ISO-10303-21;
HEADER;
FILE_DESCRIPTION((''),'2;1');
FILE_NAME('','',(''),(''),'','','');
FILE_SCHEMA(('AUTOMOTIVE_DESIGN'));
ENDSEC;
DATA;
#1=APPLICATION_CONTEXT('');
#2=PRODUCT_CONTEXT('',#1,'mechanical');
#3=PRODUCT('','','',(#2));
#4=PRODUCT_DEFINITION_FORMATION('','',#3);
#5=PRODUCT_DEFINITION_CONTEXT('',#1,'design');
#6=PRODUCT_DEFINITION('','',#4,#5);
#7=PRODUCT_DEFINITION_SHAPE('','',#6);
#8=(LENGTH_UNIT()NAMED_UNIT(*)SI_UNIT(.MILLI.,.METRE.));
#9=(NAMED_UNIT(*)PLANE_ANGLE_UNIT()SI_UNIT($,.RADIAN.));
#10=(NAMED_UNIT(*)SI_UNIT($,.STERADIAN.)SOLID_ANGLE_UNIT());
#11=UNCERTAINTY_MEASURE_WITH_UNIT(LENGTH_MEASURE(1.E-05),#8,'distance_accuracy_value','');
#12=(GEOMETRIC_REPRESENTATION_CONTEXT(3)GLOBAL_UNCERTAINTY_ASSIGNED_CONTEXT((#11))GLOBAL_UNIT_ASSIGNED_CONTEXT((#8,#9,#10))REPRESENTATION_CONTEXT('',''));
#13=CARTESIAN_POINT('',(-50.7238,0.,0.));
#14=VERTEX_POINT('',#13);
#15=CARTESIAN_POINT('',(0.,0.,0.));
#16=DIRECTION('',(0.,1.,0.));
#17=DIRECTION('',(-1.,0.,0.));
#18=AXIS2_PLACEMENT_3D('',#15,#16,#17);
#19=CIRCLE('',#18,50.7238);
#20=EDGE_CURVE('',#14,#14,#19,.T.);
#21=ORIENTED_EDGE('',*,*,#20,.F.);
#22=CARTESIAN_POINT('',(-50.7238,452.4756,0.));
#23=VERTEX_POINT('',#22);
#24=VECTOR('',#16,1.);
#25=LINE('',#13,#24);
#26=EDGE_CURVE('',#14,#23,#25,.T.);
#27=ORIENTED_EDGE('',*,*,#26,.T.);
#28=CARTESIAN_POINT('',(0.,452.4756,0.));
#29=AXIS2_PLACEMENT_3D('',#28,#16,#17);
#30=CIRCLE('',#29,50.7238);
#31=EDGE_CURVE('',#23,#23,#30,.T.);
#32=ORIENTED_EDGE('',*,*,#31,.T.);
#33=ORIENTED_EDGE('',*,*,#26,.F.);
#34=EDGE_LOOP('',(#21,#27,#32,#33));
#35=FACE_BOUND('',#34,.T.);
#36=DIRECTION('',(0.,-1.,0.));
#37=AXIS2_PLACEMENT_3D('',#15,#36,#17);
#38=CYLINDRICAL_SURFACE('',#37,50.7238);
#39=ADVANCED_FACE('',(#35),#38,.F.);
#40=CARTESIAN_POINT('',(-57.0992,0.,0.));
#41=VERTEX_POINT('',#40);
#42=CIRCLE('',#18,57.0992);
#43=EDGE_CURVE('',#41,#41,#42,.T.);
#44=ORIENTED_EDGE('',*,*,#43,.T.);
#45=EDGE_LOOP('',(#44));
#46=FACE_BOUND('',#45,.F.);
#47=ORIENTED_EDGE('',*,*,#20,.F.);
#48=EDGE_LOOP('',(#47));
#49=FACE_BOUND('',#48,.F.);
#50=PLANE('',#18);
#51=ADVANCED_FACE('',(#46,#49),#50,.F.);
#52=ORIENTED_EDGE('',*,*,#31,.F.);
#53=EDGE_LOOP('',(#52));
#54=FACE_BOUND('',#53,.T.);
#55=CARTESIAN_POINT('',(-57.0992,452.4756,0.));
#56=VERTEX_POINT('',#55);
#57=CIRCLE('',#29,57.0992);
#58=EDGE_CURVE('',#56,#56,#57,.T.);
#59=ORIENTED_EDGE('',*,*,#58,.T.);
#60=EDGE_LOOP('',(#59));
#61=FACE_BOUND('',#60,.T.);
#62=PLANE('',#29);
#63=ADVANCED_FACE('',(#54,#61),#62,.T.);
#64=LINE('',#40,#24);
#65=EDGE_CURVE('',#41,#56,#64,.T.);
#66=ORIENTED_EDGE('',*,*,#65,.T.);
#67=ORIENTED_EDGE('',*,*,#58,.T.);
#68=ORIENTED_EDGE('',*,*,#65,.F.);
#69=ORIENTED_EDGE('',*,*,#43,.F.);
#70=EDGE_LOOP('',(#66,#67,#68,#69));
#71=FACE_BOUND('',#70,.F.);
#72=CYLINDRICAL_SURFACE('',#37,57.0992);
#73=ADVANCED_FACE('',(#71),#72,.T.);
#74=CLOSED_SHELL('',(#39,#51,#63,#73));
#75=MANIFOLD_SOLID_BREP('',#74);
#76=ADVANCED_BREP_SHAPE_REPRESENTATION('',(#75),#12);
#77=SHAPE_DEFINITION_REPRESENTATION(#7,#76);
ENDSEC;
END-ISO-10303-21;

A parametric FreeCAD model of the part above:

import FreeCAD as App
import Part
import Sketcher
Q = App.Units.Quantity

doc = App.newDocument("Part")
params = doc.addObject("Spreadsheet::Sheet", "Params")
for row, (alias, value) in enumerate([
    ("sketch1_diameter", "4.496 in"),
    ("sketch1_diameter2", "3.994 in"),
    ("pad1_length", "17.814 in"),
], start=1):
    params.set(f"A{row}", alias)
    params.set(f"B{row}", "=" + value)
    params.setAlias(f"B{row}", alias)

body = doc.addObject("PartDesign::Body", "Body")

sketch1 = doc.addObject("Sketcher::SketchObject", "Sketch")
body.addObject(sketch1)
sketch1.AttachmentSupport = (doc.XZ_Plane, [""])
sketch1.MapMode = "FlatFace"
sketch1.addGeometry([
    Part.Circle(App.Vector(0, 0, 0), App.Vector(0, 0, 1), 57.0992),
    Part.Circle(App.Vector(0, 0, 0), App.Vector(0, 0, 1), 50.7238),
], False)
sketch1.addConstraint([
    Sketcher.Constraint("Coincident", 0, 3, -1, 1),
    Sketcher.Constraint("Coincident", 1, 3, -1, 1),
    Sketcher.Constraint("Diameter", 0, Q("4.496 in")),
    Sketcher.Constraint("Diameter", 1, Q("3.994 in")),
])
sketch1.setExpression("Constraints[2]", "Params.sketch1_diameter")
sketch1.setExpression("Constraints[3]", "Params.sketch1_diameter2")
pad1 = doc.addObject("PartDesign::Pad", "Pad")
body.addObject(pad1)
pad1.Profile = sketch1
pad1.setExpression("Length", "Params.pad1_length")
pad1.Reversed = True

doc.recompute()
